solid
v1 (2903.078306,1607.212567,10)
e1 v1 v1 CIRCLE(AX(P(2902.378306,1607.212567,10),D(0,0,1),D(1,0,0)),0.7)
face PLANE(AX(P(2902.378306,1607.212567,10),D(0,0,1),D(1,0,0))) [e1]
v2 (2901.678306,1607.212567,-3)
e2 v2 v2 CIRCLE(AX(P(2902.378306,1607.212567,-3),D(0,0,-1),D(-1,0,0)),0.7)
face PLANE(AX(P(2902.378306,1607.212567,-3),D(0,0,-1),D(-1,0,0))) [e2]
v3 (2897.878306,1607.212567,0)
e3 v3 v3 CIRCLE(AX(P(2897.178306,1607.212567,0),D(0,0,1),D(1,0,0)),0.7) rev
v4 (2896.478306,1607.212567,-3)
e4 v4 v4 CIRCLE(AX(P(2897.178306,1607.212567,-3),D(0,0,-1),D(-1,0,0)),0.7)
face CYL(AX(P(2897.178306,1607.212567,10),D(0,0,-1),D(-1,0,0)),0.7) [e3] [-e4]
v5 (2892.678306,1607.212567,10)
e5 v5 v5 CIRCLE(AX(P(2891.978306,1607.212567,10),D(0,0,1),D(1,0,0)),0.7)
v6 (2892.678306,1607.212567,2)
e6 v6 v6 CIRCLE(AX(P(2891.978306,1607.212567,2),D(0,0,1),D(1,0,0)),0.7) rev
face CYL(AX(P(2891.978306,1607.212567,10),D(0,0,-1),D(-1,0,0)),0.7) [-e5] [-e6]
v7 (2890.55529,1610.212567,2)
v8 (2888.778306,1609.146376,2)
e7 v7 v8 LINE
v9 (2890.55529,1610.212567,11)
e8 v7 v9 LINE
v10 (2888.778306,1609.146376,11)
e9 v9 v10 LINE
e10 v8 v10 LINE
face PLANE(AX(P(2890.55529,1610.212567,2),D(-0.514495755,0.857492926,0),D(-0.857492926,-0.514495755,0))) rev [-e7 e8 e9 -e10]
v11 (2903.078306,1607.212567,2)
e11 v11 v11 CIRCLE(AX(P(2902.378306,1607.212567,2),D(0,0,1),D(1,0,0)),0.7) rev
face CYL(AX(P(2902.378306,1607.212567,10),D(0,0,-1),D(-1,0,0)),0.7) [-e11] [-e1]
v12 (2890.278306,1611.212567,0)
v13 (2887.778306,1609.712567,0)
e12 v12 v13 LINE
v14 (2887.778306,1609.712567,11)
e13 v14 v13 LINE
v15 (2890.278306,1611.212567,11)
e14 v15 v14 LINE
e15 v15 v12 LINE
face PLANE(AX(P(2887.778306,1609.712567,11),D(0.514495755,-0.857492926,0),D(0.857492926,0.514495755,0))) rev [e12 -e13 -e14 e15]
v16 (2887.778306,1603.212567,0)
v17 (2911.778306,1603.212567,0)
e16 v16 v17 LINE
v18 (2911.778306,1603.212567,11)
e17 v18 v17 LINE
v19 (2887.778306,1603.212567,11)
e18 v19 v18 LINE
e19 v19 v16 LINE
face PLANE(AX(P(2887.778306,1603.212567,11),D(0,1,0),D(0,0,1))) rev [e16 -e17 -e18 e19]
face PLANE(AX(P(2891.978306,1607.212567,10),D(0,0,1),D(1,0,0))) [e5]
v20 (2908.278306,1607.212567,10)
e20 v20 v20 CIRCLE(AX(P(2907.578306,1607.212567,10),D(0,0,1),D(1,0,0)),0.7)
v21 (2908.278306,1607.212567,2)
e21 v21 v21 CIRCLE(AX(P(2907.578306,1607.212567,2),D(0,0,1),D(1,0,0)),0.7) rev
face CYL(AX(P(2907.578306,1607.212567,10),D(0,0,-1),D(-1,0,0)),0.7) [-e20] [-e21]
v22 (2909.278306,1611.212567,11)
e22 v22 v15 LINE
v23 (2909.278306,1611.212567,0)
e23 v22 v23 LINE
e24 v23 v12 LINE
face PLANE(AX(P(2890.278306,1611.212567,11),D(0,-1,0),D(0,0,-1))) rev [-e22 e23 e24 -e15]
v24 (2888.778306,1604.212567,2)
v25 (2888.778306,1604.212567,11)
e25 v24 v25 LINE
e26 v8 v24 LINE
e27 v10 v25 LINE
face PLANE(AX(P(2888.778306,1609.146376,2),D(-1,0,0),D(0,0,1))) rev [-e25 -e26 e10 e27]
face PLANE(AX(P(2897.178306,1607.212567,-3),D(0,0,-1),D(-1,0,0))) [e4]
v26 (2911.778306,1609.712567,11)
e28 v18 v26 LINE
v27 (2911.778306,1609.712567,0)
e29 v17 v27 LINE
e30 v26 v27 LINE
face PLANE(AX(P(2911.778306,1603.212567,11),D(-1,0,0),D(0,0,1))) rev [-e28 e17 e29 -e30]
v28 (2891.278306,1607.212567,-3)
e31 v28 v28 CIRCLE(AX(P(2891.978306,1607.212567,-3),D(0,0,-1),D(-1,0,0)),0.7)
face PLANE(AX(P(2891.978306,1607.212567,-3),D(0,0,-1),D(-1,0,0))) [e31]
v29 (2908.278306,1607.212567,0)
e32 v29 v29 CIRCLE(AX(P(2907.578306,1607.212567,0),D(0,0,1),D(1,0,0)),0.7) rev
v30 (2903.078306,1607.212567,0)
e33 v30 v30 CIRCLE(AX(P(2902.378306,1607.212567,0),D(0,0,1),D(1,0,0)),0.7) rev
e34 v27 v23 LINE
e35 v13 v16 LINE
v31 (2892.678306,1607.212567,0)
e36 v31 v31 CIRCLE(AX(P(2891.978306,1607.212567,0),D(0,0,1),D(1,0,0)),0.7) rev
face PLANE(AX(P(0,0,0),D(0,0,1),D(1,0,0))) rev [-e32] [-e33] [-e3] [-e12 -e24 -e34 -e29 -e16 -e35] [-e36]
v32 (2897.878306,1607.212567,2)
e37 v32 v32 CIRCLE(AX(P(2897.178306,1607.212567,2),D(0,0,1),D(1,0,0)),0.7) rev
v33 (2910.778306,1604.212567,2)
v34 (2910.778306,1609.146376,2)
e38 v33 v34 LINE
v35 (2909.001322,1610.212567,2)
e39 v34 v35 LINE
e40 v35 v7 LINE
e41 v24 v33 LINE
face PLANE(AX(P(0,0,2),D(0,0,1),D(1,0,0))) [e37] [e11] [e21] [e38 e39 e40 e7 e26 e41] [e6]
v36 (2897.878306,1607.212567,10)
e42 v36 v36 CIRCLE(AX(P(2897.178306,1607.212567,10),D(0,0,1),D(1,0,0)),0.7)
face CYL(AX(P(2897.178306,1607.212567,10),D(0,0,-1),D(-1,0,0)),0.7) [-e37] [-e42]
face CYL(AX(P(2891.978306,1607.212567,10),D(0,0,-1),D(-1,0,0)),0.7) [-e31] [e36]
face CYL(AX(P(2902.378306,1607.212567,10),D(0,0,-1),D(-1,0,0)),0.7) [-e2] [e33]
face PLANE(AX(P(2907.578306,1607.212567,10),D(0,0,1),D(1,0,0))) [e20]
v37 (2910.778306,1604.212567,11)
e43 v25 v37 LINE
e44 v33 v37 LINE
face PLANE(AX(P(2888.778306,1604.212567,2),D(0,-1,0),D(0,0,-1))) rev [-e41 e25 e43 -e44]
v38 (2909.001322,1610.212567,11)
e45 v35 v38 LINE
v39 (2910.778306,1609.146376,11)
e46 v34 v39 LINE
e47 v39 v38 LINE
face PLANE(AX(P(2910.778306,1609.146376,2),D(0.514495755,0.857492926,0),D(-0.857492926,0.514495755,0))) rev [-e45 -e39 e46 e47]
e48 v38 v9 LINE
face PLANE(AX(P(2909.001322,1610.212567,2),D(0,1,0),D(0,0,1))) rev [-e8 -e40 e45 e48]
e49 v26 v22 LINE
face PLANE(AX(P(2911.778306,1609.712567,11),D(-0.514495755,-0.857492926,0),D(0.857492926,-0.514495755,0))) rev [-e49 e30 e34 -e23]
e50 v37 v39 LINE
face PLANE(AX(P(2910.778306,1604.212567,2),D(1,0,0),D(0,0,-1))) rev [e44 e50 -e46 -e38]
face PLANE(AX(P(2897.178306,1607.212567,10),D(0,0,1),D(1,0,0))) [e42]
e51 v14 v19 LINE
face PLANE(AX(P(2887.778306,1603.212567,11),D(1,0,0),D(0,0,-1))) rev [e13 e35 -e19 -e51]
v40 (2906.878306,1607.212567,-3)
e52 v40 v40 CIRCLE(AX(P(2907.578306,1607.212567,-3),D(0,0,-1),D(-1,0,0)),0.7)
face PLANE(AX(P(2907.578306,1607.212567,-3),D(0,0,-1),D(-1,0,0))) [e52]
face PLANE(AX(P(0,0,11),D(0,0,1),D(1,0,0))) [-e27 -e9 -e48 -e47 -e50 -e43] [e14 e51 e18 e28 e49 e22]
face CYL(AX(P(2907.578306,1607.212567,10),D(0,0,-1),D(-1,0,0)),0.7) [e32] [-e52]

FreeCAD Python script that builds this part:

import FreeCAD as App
import Part
import Sketcher

V = App.Vector


def add_polygon(sketch, points):
    """Adds a closed chain of lines whose ends are joined by coincident constraints."""
    first, n = sketch.GeometryCount, len(points)
    for a, b in zip(points, points[1:] + points[:1]):
        sketch.addGeometry(Part.LineSegment(App.Vector(*a, 0), App.Vector(*b, 0)), False)
    for i in range(n):
        sketch.addConstraint(Sketcher.Constraint("Coincident", first + i, 2, first + (i + 1) % n, 1))

doc = App.newDocument("Part")
body = doc.addObject("PartDesign::Body", "Body")

sketch1 = body.newObject("Sketcher::SketchObject", "Sketch")
sketch1.AttachmentSupport = (doc.getObject("XY_Plane"), [""])
sketch1.MapMode = "FlatFace"
add_polygon(sketch1, [(2909.3, 1611.2), (2890.3, 1611.2), (2887.8, 1609.7), (2887.8, 1603.2), (2911.8, 1603.2), (2911.8, 1609.7)])
sketch1.addConstraint(Sketcher.Constraint("Horizontal", 0))
sketch1.addConstraint(Sketcher.Constraint("Vertical", 2))
sketch1.addConstraint(Sketcher.Constraint("Horizontal", 3))
sketch1.addConstraint(Sketcher.Constraint("Vertical", 4))
sketch1.addConstraint(Sketcher.Constraint("Horizontal", 1, 2, 4, 2))
sketch1.addConstraint(Sketcher.Constraint("Equal", 1, 5))
sketch1.addConstraint(Sketcher.Constraint("DistanceX", 0, 2, 0, 1, 19.0))
sketch1.addConstraint(Sketcher.Constraint("DistanceX", 3, 1, 3, 2, 24.0))
sketch1.addConstraint(Sketcher.Constraint("DistanceY", 2, 2, 2, 1, 6.5))
sketch1.addConstraint(Sketcher.Constraint("DistanceY", 2, 2, 0, 2, 8.0))
sketch1.addConstraint(Sketcher.Constraint("DistanceX", -1, 1, 0, 2, 2890.278306))
sketch1.addConstraint(Sketcher.Constraint("DistanceY", -1, 1, 0, 2, 1611.212567))
pad1 = body.newObject("PartDesign::Pad", "Pad")
pad1.Profile = sketch1
pad1.Length = 11

sketch2 = body.newObject("Sketcher::SketchObject", "Sketch001")
sketch2.AttachmentSupport = (doc.getObject("XY_Plane"), [""])
sketch2.MapMode = "FlatFace"
sketch2.AttachmentOffset = App.Placement(V(0, 0, 11), App.Rotation())
add_polygon(sketch2, [(2890.6, 1610.2), (2888.8, 1609.1), (2888.8, 1604.2), (2910.8, 1604.2), (2910.8, 1609.1), (2909, 1610.2)])
sketch2.addConstraint(Sketcher.Constraint("Vertical", 1))
sketch2.addConstraint(Sketcher.Constraint("Horizontal", 2))
sketch2.addConstraint(Sketcher.Constraint("Vertical", 3))
sketch2.addConstraint(Sketcher.Constraint("Horizontal", 5))
sketch2.addConstraint(Sketcher.Constraint("Horizontal", 0, 2, 3, 2))
sketch2.addConstraint(Sketcher.Constraint("Equal", 0, 4))
sketch2.addConstraint(Sketcher.Constraint("DistanceX", 2, 1, 2, 2, 22.0))
sketch2.addConstraint(Sketcher.Constraint("DistanceY", 2, 2, 4, 2, 6.0))
sketch2.addConstraint(Sketcher.Constraint("Distance", 0, 2.072302))
sketch2.addConstraint(Sketcher.Constraint("DistanceY", 1, 2, 1, 1, 4.93381))
sketch2.addConstraint(Sketcher.Constraint("DistanceX", -1, 1, 4, 2, 2909.001322))
sketch2.addConstraint(Sketcher.Constraint("DistanceY", -1, 1, 0, 2, 1609.146376))
pocket1 = body.newObject("PartDesign::Pocket", "Pocket")
pocket1.Profile = sketch2
pocket1.Length = 9

sketch3 = body.newObject("Sketcher::SketchObject", "Sketch002")
sketch3.AttachmentSupport = (doc.getObject("XY_Plane"), [""])
sketch3.MapMode = "FlatFace"
sketch3.AttachmentOffset = App.Placement(V(0, 0, 2), App.Rotation())
sketch3.addGeometry(Part.Circle(V(2892, 1607.2, 0), V(0, 0, 1), 0.7), False)
sketch3.addConstraint(Sketcher.Constraint("Diameter", 0, 1.4))
sketch3.addConstraint(Sketcher.Constraint("DistanceX", -1, 1, 0, 3, 2891.978306))
sketch3.addConstraint(Sketcher.Constraint("DistanceY", -1, 1, 0, 3, 1607.212567))
pad2 = body.newObject("PartDesign::Pad", "Pad001")
pad2.Profile = sketch3
pad2.Length = 16
pad2.Midplane = True

sketch4 = body.newObject("Sketcher::SketchObject", "Sketch003")
sketch4.AttachmentSupport = (doc.getObject("XY_Plane"), [""])
sketch4.MapMode = "FlatFace"
sketch4.AttachmentOffset = App.Placement(V(0, 0, -6), App.Rotation())
sketch4.addGeometry(Part.Circle(V(2892, 1607.2, 0), V(0, 0, 1), 1.6), False)
sketch4.addConstraint(Sketcher.Constraint("Diameter", 0, 3.153134))
sketch4.addConstraint(Sketcher.Constraint("DistanceX", -1, 1, 0, 3, 2891.978306))
sketch4.addConstraint(Sketcher.Constraint("DistanceY", -1, 1, 0, 3, 1607.212567))
pocket2 = body.newObject("PartDesign::Pocket", "Pocket001")
pocket2.Profile = sketch4
pocket2.Length = 3
pocket2.Reversed = True
doc.recompute()

linearpattern = body.newObject("PartDesign::LinearPattern", "LinearPattern")
linearpattern.Originals = [pad2, pocket2]
linearpattern.Direction = (doc.getObject("X_Axis"), [""])
linearpattern.Mode = "offset"
linearpattern.Offset = 5.2
linearpattern.Occurrences = 4
body.Tip = linearpattern

doc.recompute()
